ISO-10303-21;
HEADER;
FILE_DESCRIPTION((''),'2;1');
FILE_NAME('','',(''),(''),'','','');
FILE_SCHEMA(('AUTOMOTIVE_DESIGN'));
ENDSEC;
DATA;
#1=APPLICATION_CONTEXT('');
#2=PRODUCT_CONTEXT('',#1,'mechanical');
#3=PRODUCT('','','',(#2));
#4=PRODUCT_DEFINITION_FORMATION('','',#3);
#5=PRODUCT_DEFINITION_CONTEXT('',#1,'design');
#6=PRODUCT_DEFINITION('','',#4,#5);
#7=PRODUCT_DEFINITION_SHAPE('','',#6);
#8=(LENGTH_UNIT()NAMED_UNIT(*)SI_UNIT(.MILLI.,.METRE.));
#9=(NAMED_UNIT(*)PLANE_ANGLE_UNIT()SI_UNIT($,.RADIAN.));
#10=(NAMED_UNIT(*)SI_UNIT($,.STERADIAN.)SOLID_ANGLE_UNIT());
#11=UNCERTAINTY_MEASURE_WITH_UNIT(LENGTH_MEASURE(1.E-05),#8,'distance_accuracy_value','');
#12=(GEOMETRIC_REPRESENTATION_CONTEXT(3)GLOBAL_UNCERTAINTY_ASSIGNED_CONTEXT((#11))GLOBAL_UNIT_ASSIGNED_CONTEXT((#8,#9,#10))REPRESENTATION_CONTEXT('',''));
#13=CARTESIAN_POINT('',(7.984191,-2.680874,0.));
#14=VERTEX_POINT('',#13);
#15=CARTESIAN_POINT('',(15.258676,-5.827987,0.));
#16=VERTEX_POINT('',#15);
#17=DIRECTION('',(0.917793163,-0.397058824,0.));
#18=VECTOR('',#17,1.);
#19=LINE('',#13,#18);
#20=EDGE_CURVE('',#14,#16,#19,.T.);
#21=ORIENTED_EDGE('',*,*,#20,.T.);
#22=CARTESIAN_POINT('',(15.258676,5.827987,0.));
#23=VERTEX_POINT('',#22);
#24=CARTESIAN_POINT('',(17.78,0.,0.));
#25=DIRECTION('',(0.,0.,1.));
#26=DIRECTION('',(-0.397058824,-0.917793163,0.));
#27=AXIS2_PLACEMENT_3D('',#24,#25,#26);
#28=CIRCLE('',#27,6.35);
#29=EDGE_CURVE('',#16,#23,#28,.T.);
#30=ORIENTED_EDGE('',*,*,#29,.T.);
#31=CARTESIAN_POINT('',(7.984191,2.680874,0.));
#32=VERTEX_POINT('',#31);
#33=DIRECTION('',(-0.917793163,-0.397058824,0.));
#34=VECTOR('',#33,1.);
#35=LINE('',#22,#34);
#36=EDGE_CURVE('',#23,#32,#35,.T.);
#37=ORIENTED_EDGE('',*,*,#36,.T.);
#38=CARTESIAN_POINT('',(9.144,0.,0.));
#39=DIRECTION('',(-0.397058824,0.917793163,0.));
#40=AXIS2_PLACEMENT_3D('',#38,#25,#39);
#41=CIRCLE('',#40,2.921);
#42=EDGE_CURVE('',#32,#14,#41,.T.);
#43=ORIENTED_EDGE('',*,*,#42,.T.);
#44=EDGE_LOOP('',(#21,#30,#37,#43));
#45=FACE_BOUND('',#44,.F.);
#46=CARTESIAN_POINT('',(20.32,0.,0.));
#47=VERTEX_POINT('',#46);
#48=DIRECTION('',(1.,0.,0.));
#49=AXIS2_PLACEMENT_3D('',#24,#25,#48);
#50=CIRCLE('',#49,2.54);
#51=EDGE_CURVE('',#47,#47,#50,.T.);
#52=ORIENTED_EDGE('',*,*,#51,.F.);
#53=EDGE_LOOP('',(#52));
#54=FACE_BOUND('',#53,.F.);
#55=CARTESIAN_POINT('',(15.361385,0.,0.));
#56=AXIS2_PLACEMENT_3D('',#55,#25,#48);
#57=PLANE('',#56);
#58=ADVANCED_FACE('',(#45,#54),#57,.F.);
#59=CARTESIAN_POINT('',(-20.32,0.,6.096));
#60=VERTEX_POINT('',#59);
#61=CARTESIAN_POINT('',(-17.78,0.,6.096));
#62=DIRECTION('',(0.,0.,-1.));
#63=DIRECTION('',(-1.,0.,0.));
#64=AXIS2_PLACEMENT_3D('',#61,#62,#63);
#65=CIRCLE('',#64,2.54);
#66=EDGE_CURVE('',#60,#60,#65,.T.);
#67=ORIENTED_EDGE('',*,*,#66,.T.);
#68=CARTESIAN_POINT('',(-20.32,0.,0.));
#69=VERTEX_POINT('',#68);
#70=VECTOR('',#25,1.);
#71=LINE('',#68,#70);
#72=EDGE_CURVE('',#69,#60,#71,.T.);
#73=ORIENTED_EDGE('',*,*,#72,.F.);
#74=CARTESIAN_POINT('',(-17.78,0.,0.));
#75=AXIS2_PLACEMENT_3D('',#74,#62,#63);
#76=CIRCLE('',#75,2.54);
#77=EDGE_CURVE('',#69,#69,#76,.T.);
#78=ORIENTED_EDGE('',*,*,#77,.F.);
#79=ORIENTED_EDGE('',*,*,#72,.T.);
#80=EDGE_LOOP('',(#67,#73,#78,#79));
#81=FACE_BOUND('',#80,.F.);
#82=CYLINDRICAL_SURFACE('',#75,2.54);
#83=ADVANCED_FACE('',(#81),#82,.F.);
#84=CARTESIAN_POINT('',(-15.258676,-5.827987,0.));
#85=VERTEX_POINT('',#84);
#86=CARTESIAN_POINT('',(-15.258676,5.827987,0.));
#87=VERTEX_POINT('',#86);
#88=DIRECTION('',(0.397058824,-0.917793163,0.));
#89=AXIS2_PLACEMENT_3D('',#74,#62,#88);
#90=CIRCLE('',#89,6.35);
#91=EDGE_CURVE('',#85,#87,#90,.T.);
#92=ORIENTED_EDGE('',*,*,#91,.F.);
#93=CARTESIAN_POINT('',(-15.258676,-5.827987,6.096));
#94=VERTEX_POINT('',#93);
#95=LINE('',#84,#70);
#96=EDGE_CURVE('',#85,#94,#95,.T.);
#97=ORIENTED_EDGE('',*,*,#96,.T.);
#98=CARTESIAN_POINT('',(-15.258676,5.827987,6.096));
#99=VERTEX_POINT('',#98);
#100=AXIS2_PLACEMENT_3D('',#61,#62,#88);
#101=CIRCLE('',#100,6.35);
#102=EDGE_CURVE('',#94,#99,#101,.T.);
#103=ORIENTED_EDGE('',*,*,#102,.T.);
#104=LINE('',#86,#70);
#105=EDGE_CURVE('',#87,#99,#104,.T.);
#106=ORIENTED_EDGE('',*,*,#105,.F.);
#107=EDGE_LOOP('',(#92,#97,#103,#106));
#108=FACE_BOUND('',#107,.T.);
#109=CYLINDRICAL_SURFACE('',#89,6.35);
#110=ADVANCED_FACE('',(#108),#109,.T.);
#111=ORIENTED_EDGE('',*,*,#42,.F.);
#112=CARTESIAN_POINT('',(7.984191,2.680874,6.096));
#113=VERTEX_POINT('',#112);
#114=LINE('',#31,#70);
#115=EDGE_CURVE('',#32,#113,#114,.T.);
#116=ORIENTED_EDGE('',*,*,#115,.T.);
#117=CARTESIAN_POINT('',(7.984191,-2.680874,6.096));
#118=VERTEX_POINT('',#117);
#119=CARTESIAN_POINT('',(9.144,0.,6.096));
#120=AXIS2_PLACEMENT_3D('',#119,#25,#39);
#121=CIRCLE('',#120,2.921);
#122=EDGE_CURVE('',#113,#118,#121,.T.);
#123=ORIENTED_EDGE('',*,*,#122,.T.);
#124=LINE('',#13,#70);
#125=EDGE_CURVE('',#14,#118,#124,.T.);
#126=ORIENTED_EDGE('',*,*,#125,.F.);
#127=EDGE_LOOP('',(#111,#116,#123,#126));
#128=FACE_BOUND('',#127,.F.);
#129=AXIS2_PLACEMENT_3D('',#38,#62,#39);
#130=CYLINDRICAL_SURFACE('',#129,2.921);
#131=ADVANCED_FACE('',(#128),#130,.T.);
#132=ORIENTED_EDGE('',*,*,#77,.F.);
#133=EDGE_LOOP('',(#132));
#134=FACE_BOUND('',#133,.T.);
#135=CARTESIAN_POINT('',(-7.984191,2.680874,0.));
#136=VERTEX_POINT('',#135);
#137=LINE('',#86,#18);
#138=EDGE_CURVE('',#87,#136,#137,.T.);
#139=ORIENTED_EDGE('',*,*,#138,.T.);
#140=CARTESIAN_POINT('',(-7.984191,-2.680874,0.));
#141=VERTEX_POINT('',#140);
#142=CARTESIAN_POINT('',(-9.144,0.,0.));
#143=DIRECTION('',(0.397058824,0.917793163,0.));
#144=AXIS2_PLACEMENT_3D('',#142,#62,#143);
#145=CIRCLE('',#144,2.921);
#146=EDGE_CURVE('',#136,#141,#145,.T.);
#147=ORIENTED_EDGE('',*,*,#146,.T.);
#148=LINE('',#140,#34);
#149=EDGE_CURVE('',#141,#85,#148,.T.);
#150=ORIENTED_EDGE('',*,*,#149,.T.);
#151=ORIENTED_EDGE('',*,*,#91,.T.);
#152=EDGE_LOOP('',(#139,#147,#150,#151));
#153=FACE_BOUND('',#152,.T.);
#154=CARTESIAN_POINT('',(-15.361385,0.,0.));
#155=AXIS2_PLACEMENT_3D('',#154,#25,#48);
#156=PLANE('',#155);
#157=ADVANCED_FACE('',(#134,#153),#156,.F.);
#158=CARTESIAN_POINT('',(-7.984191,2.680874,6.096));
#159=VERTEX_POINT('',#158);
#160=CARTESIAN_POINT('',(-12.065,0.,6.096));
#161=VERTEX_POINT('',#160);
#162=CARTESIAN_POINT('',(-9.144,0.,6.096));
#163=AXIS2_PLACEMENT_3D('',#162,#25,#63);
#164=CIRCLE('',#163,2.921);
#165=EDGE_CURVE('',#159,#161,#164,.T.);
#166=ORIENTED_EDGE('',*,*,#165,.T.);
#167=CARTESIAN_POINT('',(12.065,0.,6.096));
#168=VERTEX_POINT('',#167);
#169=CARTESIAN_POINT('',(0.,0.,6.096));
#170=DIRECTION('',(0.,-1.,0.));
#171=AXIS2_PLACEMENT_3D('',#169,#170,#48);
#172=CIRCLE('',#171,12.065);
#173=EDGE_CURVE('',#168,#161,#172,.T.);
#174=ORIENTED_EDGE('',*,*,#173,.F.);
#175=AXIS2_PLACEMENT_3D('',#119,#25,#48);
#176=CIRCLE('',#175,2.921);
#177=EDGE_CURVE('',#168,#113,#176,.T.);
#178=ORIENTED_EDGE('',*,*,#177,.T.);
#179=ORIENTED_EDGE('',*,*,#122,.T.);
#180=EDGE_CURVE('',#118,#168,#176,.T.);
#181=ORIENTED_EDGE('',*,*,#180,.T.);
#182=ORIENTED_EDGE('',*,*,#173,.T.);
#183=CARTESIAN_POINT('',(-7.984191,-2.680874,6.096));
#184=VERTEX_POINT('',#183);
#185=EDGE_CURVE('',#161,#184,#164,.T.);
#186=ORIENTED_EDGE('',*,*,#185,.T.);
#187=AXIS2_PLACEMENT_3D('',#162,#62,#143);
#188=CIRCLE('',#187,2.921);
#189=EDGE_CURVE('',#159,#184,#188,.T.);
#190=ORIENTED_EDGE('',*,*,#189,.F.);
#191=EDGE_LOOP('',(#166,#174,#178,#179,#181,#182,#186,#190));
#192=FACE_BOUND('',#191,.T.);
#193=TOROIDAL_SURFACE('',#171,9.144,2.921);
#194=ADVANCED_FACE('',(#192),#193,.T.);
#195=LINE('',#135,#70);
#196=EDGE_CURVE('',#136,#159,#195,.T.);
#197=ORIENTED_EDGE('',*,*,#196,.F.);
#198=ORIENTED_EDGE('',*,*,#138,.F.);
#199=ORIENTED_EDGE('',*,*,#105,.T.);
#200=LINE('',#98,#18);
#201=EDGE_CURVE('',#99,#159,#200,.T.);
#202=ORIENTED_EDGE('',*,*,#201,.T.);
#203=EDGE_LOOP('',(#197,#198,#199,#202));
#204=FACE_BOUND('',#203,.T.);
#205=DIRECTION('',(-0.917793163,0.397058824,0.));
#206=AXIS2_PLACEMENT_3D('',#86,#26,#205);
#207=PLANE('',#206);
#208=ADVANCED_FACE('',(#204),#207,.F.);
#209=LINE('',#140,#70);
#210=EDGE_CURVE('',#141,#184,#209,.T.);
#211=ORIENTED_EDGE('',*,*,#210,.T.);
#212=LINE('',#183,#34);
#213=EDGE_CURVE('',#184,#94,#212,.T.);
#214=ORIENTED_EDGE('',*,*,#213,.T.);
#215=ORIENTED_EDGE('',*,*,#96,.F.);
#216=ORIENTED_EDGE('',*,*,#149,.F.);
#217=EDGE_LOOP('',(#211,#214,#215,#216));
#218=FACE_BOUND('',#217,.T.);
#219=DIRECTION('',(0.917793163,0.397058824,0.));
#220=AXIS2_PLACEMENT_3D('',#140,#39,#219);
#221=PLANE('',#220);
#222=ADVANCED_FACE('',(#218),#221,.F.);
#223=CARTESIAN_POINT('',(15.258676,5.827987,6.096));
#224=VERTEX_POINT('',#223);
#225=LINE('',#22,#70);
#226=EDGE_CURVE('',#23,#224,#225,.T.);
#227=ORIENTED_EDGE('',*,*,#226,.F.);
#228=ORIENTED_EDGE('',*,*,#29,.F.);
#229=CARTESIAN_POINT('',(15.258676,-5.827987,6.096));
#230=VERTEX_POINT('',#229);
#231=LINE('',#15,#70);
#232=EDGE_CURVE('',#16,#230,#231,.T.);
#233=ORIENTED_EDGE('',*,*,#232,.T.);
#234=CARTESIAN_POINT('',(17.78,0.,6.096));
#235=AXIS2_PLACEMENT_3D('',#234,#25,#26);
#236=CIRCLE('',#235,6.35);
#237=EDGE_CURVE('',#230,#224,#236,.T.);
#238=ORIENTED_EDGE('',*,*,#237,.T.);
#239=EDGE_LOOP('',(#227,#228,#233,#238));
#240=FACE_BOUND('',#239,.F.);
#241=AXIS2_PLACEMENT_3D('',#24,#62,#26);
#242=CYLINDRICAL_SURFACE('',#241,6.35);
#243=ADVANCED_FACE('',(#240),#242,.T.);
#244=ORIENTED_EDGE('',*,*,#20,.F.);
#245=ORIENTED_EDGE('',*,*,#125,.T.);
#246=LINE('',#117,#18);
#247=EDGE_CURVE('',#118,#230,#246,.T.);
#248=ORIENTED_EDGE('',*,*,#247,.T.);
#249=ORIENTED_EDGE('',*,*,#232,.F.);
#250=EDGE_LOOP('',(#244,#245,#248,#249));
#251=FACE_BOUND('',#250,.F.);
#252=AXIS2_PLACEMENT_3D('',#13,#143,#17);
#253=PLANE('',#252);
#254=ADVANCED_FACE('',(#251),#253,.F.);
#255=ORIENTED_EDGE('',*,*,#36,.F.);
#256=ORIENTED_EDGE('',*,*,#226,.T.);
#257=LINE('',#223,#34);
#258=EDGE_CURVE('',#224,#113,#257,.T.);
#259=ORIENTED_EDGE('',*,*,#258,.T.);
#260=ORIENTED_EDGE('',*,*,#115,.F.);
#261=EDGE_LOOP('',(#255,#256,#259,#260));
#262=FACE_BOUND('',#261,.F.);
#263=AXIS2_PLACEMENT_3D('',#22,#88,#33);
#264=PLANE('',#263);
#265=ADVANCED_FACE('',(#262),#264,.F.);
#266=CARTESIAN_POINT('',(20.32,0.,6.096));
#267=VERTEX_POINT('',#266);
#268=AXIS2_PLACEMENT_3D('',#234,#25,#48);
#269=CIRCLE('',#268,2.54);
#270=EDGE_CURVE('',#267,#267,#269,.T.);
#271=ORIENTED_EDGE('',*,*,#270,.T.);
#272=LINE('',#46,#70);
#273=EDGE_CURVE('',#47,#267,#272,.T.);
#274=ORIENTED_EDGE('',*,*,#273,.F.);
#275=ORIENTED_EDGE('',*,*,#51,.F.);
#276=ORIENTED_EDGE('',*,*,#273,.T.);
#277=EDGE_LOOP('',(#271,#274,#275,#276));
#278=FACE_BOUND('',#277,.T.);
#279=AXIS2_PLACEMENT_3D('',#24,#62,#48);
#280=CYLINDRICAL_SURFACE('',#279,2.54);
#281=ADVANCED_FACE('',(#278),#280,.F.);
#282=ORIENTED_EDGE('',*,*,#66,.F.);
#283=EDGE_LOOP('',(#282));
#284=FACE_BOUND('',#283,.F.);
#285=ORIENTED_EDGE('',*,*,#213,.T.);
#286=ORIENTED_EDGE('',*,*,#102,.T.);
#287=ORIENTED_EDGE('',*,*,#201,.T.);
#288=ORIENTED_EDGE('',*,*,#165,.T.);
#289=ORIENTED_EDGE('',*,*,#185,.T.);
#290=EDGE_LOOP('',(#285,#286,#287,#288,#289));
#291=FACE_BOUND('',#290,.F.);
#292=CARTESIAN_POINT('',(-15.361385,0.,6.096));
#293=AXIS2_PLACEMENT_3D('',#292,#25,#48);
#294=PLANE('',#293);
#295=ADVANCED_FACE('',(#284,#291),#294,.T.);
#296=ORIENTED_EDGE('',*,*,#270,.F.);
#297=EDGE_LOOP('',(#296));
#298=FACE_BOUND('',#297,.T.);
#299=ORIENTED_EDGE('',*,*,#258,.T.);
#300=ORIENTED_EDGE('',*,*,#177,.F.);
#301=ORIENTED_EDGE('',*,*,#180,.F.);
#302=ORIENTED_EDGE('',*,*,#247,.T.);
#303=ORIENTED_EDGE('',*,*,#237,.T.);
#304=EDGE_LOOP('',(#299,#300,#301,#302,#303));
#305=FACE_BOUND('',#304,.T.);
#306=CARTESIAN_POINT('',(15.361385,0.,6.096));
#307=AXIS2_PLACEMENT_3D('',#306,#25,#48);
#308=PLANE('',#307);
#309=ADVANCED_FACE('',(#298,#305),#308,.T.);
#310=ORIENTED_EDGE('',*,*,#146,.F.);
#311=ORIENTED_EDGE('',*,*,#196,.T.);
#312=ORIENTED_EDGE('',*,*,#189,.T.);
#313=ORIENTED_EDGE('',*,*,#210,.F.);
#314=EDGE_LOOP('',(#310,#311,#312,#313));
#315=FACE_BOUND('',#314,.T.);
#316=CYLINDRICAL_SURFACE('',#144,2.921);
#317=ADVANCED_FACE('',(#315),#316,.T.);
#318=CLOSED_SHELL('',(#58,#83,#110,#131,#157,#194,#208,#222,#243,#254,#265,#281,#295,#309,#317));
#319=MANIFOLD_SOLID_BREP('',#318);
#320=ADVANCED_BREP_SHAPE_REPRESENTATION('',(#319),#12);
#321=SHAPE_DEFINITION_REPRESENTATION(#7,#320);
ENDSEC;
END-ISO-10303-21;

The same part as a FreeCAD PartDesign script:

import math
import FreeCAD as App
import Part
import Sketcher
from FreeCAD import Vector
Q = App.Units.Quantity

doc = App.newDocument("Part")
body = doc.addObject("PartDesign::Body", "Body")

sketch1 = body.newObject("Sketcher::SketchObject", "Sketch")
sketch1.AttachmentSupport = (doc.getObject("XY_Plane"), [""])
sketch1.MapMode = "FlatFace"
sketch1.addGeometry(Part.Circle(Vector(9.1, 0, 0), Vector(0, 0, 1), 2.9), False)
sketch1.addConstraint([
    Sketcher.Constraint("PointOnObject", 0, 3, -1),
    Sketcher.Constraint("Diameter", 0, Q("0.23 in")),
    Sketcher.Constraint("DistanceX", -1, 1, 0, 3, Q("0.36 in")),
])

sketch2 = body.newObject("Sketcher::SketchObject", "Sketch001")
sketch2.AttachmentSupport = (doc.getObject("XY_Plane"), [""])
sketch2.MapMode = "FlatFace"
sketch2.AttachmentOffset = App.Placement(Vector(0, 0, 0.24 * 25.4), App.Rotation())
sketch2.addGeometry(Part.Circle(Vector(9.1, 0, 0), Vector(0, 0, 1), 2.9), False)
sketch2.addConstraint([
    Sketcher.Constraint("PointOnObject", 0, 3, -1),
    Sketcher.Constraint("Diameter", 0, Q("0.23 in")),
    Sketcher.Constraint("DistanceX", -1, 1, 0, 3, Q("0.36 in")),
])

additiveloft = body.newObject("PartDesign::AdditiveLoft", "AdditiveLoft")
additiveloft.Profile = sketch1
additiveloft.Sections = [sketch2]

sketch3 = body.newObject("Sketcher::SketchObject", "Sketch002")
sketch3.AttachmentSupport = (doc.getObject("XY_Plane"), [""])
sketch3.MapMode = "FlatFace"
sketch3.AttachmentOffset = App.Placement(Vector(0, 0, 0.24 * 25.4), App.Rotation())
sketch3.addGeometry(Part.Circle(Vector(9.1, 0, 0), Vector(0, 0, 1), 2.9), False)
sketch3.addConstraint([
    Sketcher.Constraint("PointOnObject", 0, 3, -1),
    Sketcher.Constraint("Diameter", 0, Q("0.23 in")),
    Sketcher.Constraint("DistanceX", -1, 1, 0, 3, Q("0.36 in")),
])

sketch4 = body.newObject("Sketcher::SketchObject", "Sketch003")
sketch4.AttachmentSupport = (doc.getObject("XZ_Plane"), [""])
sketch4.MapMode = "FlatFace"
sketch4.addGeometry(Part.ArcOfCircle(Part.Circle(Vector(0, 6, 0), Vector(0, 0, 1), 9), math.radians(0), math.radians(180)), False)
sketch4.addConstraint([
    Sketcher.Constraint("Symmetric", 0, 1, 0, 2, -2),
    Sketcher.Constraint("Radius", 0, Q("0.36 in")),
    Sketcher.Constraint("DistanceY", -1, 1, 0, 3, Q("0.24 in")),
    Sketcher.Constraint("DistanceY", -1, 1, 0, 1, Q("0.24 in")),
])
doc.recompute()

additivepipe = body.newObject("PartDesign::AdditivePipe", "AdditivePipe")
additivepipe.Profile = sketch3
additivepipe.Spine = (sketch4, ["Edge1"])
body2 = doc.addObject("PartDesign::Body", "Body001")
doc.recompute()

body2.BaseFeature = body
doc.recompute()

mirroring = doc.addObject("Part::Mirroring", "Mirroring")
mirroring.Source = body
mirroring.Base = Vector(0, 0, 0)
mirroring.Normal = Vector(1, 0, 0)
body3 = doc.addObject("PartDesign::Body", "Body002")
body3.BaseFeature = mirroring
boolean = body2.newObject("PartDesign::Boolean", "Boolean")
boolean.Type = "Fuse"
boolean.addObjects([body3])
doc.recompute()

sketch5 = body2.newObject("Sketcher::SketchObject", "Sketch004")
sketch5.AttachmentSupport = (doc.getObject("XY_Plane001"), [""])
sketch5.MapMode = "FlatFace"
sketch5.addGeometry([
    Part.LineSegment(Vector(8, -2.7, 0), Vector(15.3, -5.8, 0)),
    Part.ArcOfCircle(Part.Circle(Vector(17.8, 0, 0), Vector(0, 0, 1), 6.3), math.radians(-113), math.radians(113)),
    Part.LineSegment(Vector(15.3, 5.8, 0), Vector(8, 2.7, 0)),
    Part.ArcOfCircle(Part.Circle(Vector(9.1, 0, 0), Vector(0, 0, 1), 2.9), math.radians(113), math.radians(247)),
    Part.Circle(Vector(17.8, 0, 0), Vector(0, 0, 1), 2.5),
], False)
sketch5.addConstraint([
    Sketcher.Constraint("Tangent", 0, 2, 1, 1),
    Sketcher.Constraint("Tangent", 1, 2, 2, 1),
    Sketcher.Constraint("Tangent", 2, 2, 3, 1),
    Sketcher.Constraint("Tangent", 3, 2, 0, 1),
    Sketcher.Constraint("Coincident", 4, 3, 1, 3),
    Sketcher.Constraint("Symmetric", 0, 2, 1, 2, -1),
    Sketcher.Constraint("Diameter", 4, Q("0.2 in")),
    Sketcher.Constraint("Radius", 1, Q("0.25 in")),
    Sketcher.Constraint("Radius", 3, Q("0.115 in")),
    Sketcher.Constraint("DistanceX", -1, 1, 1, 3, Q("0.7 in")),
    Sketcher.Constraint("DistanceX", -1, 1, 3, 3, Q("0.36 in")),
])
pad1 = body2.newObject("PartDesign::Pad", "Pad")
pad1.Profile = sketch5
pad1.Length = Q("0.24 in")
body4 = doc.addObject("PartDesign::Body", "Body003")
doc.recompute()

body4.BaseFeature = body2
doc.recompute()

mirroring2 = doc.addObject("Part::Mirroring", "Mirroring001")
mirroring2.Source = body2
mirroring2.Base = Vector(0, 0, 0)
mirroring2.Normal = Vector(1, 0, 0)
body5 = doc.addObject("PartDesign::Body", "Body004")
body5.BaseFeature = mirroring2
boolean2 = body4.newObject("PartDesign::Boolean", "Boolean001")
boolean2.Type = "Fuse"
boolean2.addObjects([body5])
doc.recompute()
mirroring.Visibility = False
mirroring2.Visibility = False

doc.recompute()
